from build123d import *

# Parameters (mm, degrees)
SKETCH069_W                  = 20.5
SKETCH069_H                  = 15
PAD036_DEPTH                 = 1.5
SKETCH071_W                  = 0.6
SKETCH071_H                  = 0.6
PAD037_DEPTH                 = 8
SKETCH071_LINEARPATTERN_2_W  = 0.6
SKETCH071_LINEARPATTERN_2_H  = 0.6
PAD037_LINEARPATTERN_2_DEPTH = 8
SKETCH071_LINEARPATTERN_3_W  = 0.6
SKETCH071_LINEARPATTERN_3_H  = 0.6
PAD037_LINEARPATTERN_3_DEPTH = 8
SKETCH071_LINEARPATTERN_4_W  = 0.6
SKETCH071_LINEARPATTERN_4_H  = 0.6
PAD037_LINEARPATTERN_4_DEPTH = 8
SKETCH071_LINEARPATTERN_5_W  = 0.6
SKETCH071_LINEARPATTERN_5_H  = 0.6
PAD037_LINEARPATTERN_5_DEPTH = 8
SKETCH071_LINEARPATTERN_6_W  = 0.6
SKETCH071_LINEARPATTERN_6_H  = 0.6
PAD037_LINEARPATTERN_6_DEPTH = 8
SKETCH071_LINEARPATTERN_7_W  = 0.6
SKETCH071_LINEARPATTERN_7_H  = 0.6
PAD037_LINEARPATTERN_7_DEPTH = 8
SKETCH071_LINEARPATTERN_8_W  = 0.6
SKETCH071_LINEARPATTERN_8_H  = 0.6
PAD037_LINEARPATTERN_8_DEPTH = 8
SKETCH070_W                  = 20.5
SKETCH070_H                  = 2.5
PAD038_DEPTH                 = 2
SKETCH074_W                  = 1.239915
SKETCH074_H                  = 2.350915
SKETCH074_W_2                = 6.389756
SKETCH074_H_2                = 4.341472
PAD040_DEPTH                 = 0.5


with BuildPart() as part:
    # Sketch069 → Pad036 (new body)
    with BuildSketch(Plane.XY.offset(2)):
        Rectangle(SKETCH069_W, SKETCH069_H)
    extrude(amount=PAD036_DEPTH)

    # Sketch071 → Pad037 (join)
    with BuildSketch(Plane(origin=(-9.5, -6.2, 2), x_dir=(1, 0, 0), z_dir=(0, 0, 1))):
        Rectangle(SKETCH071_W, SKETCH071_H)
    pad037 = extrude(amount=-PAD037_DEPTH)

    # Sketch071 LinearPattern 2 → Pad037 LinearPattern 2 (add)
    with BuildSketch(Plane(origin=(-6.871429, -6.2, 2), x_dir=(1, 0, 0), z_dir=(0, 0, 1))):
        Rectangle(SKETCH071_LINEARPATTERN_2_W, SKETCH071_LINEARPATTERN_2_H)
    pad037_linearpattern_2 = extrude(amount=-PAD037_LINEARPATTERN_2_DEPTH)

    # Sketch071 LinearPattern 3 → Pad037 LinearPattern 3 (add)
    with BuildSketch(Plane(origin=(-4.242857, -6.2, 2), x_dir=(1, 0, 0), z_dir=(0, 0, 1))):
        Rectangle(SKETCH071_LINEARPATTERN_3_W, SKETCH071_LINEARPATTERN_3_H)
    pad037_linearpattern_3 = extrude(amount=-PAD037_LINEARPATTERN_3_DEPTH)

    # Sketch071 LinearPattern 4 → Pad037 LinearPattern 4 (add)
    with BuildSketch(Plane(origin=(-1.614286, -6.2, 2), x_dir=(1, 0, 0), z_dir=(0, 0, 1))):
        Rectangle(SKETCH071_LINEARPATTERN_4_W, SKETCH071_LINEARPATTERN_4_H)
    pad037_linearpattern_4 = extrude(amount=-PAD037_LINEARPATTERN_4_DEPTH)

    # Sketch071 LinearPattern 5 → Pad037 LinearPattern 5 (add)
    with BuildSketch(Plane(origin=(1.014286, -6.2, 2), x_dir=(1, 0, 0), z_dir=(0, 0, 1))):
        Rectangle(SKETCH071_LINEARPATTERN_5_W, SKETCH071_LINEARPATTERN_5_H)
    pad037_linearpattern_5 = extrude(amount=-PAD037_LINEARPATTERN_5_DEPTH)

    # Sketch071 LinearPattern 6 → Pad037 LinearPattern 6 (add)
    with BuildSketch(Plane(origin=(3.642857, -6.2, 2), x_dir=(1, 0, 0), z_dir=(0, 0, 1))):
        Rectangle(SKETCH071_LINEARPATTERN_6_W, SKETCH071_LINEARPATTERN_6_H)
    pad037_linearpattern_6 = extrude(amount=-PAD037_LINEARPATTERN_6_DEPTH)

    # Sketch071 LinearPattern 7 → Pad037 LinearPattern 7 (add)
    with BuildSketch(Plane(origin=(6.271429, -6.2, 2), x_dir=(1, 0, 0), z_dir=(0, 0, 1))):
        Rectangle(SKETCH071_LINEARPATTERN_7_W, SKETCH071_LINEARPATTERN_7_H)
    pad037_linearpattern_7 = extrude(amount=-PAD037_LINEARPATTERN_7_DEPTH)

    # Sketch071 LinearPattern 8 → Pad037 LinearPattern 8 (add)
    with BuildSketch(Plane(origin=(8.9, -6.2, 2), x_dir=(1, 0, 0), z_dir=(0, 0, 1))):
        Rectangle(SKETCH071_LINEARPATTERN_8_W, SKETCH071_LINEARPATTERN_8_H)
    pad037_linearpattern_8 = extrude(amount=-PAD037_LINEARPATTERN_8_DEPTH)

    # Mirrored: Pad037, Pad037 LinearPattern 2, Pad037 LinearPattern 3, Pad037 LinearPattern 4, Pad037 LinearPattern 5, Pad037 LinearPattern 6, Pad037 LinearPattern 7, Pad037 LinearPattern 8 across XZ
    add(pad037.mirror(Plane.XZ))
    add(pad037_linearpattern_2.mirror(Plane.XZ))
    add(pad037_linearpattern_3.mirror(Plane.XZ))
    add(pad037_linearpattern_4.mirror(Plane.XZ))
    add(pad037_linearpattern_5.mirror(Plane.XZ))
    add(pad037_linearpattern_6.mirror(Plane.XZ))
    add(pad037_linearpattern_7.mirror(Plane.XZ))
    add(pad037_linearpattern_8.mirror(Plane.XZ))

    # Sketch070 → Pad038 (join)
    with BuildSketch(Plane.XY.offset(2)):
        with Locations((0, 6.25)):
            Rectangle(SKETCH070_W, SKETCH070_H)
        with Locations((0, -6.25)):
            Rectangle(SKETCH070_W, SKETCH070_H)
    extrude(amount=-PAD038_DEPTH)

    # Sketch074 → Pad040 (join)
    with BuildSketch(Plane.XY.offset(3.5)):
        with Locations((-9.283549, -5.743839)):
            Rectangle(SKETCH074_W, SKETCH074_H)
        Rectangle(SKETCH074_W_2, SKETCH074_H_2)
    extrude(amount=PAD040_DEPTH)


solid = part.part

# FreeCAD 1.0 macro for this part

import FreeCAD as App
import Part
import Sketcher

doc = App.newDocument("Part")
params = doc.addObject("Spreadsheet::Sheet", "Params")
for row, (alias, value) in enumerate([
    ("sketch1_height", "15 mm"),
    ("sketch1_width", "20.5 mm"),
    ("pad1_length", "1.5 mm"),
    ("sketch2_width", "0.6 mm"),
    ("pad2_length", "8 mm"),
    ("sketch3_width", "0.6 mm"),
    ("pad3_length", "8 mm"),
    ("sketch4_width", "0.6 mm"),
    ("pad4_length", "8 mm"),
    ("sketch5_width", "0.6 mm"),
    ("pad5_length", "8 mm"),
    ("sketch6_width", "0.6 mm"),
    ("pad6_length", "8 mm"),
    ("sketch7_width", "0.6 mm"),
    ("pad7_length", "8 mm"),
    ("sketch8_width", "0.6 mm"),
    ("pad8_length", "8 mm"),
    ("sketch9_width", "0.6 mm"),
    ("pad9_length", "8 mm"),
    ("sketch10_width", "20.5 mm"),
    ("sketch10_height", "2.5 mm"),
    ("pad10_length", "2 mm"),
    ("pad11_length", "0.5 mm"),
], start=1):
    params.set(f"A{row}", alias)
    params.set(f"B{row}", "=" + value)
    params.setAlias(f"B{row}", alias)

body = doc.addObject("PartDesign::Body", "Body")

sketch1 = body.newObject("Sketcher::SketchObject", "Sketch")
sketch1.AttachmentSupport = (doc.getObject("XY_Plane"), [""])
sketch1.MapMode = "FlatFace"
sketch1.AttachmentOffset = App.Placement(App.Vector(0, 0, 2), App.Rotation())
sketch1.addGeometry([
    Part.LineSegment(App.Vector(-10, 8, 0), App.Vector(-10, -8, 0)),
    Part.LineSegment(App.Vector(-10, -8, 0), App.Vector(10, -8, 0)),
    Part.LineSegment(App.Vector(10, -8, 0), App.Vector(10, 8, 0)),
    Part.LineSegment(App.Vector(10, 8, 0), App.Vector(-10, 8, 0)),
], False)
sketch1.addConstraint([
    Sketcher.Constraint("Coincident", 0, 2, 1, 1),
    Sketcher.Constraint("Coincident", 1, 2, 2, 1),
    Sketcher.Constraint("Coincident", 2, 2, 3, 1),
    Sketcher.Constraint("Coincident", 3, 2, 0, 1),
    Sketcher.Constraint("Vertical", 0),
    Sketcher.Constraint("Horizontal", 1),
    Sketcher.Constraint("Vertical", 2),
    Sketcher.Constraint("Horizontal", 3),
    Sketcher.Constraint("Symmetric", 0, 2, 2, 2, -1, 1),
    Sketcher.Constraint("DistanceY", 0, 2, 0, 1, 15.0),
    Sketcher.Constraint("DistanceX", 1, 1, 1, 2, 20.5),
])
sketch1.setExpression("Constraints[9]", "Params.sketch1_height")
sketch1.setExpression("Constraints[10]", "Params.sketch1_width")
pad1 = body.newObject("PartDesign::Pad", "Pad")
pad1.Profile = sketch1
pad1.setExpression("Length", "Params.pad1_length")

sketch2 = body.newObject("Sketcher::SketchObject", "Sketch001")
sketch2.AttachmentSupport = (doc.getObject("XY_Plane"), [""])
sketch2.MapMode = "FlatFace"
sketch2.AttachmentOffset = App.Placement(App.Vector(0, 0, 2), App.Rotation())
sketch2.addGeometry([
    Part.LineSegment(App.Vector(-9.8, -5.9, 0), App.Vector(-9.8, -6.5, 0)),
    Part.LineSegment(App.Vector(-9.8, -6.5, 0), App.Vector(-9.2, -6.5, 0)),
    Part.LineSegment(App.Vector(-9.2, -6.5, 0), App.Vector(-9.2, -5.9, 0)),
    Part.LineSegment(App.Vector(-9.2, -5.9, 0), App.Vector(-9.8, -5.9, 0)),
], False)
sketch2.addConstraint([
    Sketcher.Constraint("Coincident", 0, 2, 1, 1),
    Sketcher.Constraint("Coincident", 1, 2, 2, 1),
    Sketcher.Constraint("Coincident", 2, 2, 3, 1),
    Sketcher.Constraint("Coincident", 3, 2, 0, 1),
    Sketcher.Constraint("Vertical", 0),
    Sketcher.Constraint("Horizontal", 1),
    Sketcher.Constraint("Vertical", 2),
    Sketcher.Constraint("Horizontal", 3),
    Sketcher.Constraint("Equal", 3, 0),
    Sketcher.Constraint("DistanceX", 1, 1, 1, 2, 0.6),
    Sketcher.Constraint("DistanceX", 0, 2, -1, 1, 9.8),
    Sketcher.Constraint("DistanceY", 0, 2, -1, 1, 6.5),
])
sketch2.setExpression("Constraints[9]", "Params.sketch2_width")
pad2 = body.newObject("PartDesign::Pad", "Pad001")
pad2.Profile = sketch2
pad2.setExpression("Length", "Params.pad2_length")
pad2.Reversed = True

sketch3 = body.newObject("Sketcher::SketchObject", "Sketch002")
sketch3.AttachmentSupport = (doc.getObject("XY_Plane"), [""])
sketch3.MapMode = "FlatFace"
sketch3.AttachmentOffset = App.Placement(App.Vector(0, 0, 2), App.Rotation())
sketch3.addGeometry([
    Part.LineSegment(App.Vector(-7.2, -5.9, 0), App.Vector(-7.2, -6.5, 0)),
    Part.LineSegment(App.Vector(-7.2, -6.5, 0), App.Vector(-6.6, -6.5, 0)),
    Part.LineSegment(App.Vector(-6.6, -6.5, 0), App.Vector(-6.6, -5.9, 0)),
    Part.LineSegment(App.Vector(-6.6, -5.9, 0), App.Vector(-7.2, -5.9, 0)),
], False)
sketch3.addConstraint([
    Sketcher.Constraint("Coincident", 0, 2, 1, 1),
    Sketcher.Constraint("Coincident", 1, 2, 2, 1),
    Sketcher.Constraint("Coincident", 2, 2, 3, 1),
    Sketcher.Constraint("Coincident", 3, 2, 0, 1),
    Sketcher.Constraint("Vertical", 0),
    Sketcher.Constraint("Horizontal", 1),
    Sketcher.Constraint("Vertical", 2),
    Sketcher.Constraint("Horizontal", 3),
    Sketcher.Constraint("Equal", 3, 0),
    Sketcher.Constraint("DistanceX", 1, 1, 1, 2, 0.6),
    Sketcher.Constraint("DistanceY", 0, 2, -1, 1, 6.5),
    Sketcher.Constraint("DistanceX", 0, 2, -1, 1, 7.171429),
])
sketch3.setExpression("Constraints[9]", "Params.sketch3_width")
pad3 = body.newObject("PartDesign::Pad", "Pad002")
pad3.Profile = sketch3
pad3.setExpression("Length", "Params.pad3_length")
pad3.Reversed = True

sketch4 = body.newObject("Sketcher::SketchObject", "Sketch003")
sketch4.AttachmentSupport = (doc.getObject("XY_Plane"), [""])
sketch4.MapMode = "FlatFace"
sketch4.AttachmentOffset = App.Placement(App.Vector(0, 0, 2), App.Rotation())
sketch4.addGeometry([
    Part.LineSegment(App.Vector(-4.5, -5.9, 0), App.Vector(-4.5, -6.5, 0)),
    Part.LineSegment(App.Vector(-4.5, -6.5, 0), App.Vector(-3.9, -6.5, 0)),
    Part.LineSegment(App.Vector(-3.9, -6.5, 0), App.Vector(-3.9, -5.9, 0)),
    Part.LineSegment(App.Vector(-3.9, -5.9, 0), App.Vector(-4.5, -5.9, 0)),
], False)
sketch4.addConstraint([
    Sketcher.Constraint("Coincident", 0, 2, 1, 1),
    Sketcher.Constraint("Coincident", 1, 2, 2, 1),
    Sketcher.Constraint("Coincident", 2, 2, 3, 1),
    Sketcher.Constraint("Coincident", 3, 2, 0, 1),
    Sketcher.Constraint("Vertical", 0),
    Sketcher.Constraint("Horizontal", 1),
    Sketcher.Constraint("Vertical", 2),
    Sketcher.Constraint("Horizontal", 3),
    Sketcher.Constraint("Equal", 3, 0),
    Sketcher.Constraint("DistanceX", 1, 1, 1, 2, 0.6),
    Sketcher.Constraint("DistanceY", 0, 2, -1, 1, 6.5),
    Sketcher.Constraint("DistanceX", 0, 2, -1, 1, 4.542857),
])
sketch4.setExpression("Constraints[9]", "Params.sketch4_width")
pad4 = body.newObject("PartDesign::Pad", "Pad003")
pad4.Profile = sketch4
pad4.setExpression("Length", "Params.pad4_length")
pad4.Reversed = True

sketch5 = body.newObject("Sketcher::SketchObject", "Sketch004")
sketch5.AttachmentSupport = (doc.getObject("XY_Plane"), [""])
sketch5.MapMode = "FlatFace"
sketch5.AttachmentOffset = App.Placement(App.Vector(0, 0, 2), App.Rotation())
sketch5.addGeometry([
    Part.LineSegment(App.Vector(-1.9, -5.9, 0), App.Vector(-1.9, -6.5, 0)),
    Part.LineSegment(App.Vector(-1.9, -6.5, 0), App.Vector(-1.3, -6.5, 0)),
    Part.LineSegment(App.Vector(-1.3, -6.5, 0), App.Vector(-1.3, -5.9, 0)),
    Part.LineSegment(App.Vector(-1.3, -5.9, 0), App.Vector(-1.9, -5.9, 0)),
], False)
sketch5.addConstraint([
    Sketcher.Constraint("Coincident", 0, 2, 1, 1),
    Sketcher.Constraint("Coincident", 1, 2, 2, 1),
    Sketcher.Constraint("Coincident", 2, 2, 3, 1),
    Sketcher.Constraint("Coincident", 3, 2, 0, 1),
    Sketcher.Constraint("Vertical", 0),
    Sketcher.Constraint("Horizontal", 1),
    Sketcher.Constraint("Vertical", 2),
    Sketcher.Constraint("Horizontal", 3),
    Sketcher.Constraint("Equal", 3, 0),
    Sketcher.Constraint("DistanceX", 1, 1, 1, 2, 0.6),
    Sketcher.Constraint("DistanceY", 0, 2, -1, 1, 6.5),
    Sketcher.Constraint("DistanceX", 0, 2, -1, 1, 1.914286),
])
sketch5.setExpression("Constraints[9]", "Params.sketch5_width")
pad5 = body.newObject("PartDesign::Pad", "Pad004")
pad5.Profile = sketch5
pad5.setExpression("Length", "Params.pad5_length")
pad5.Reversed = True

sketch6 = body.newObject("Sketcher::SketchObject", "Sketch005")
sketch6.AttachmentSupport = (doc.getObject("XY_Plane"), [""])
sketch6.MapMode = "FlatFace"
sketch6.AttachmentOffset = App.Placement(App.Vector(0, 0, 2), App.Rotation())
sketch6.addGeometry([
    Part.LineSegment(App.Vector(0.7, -5.9, 0), App.Vector(0.7, -6.5, 0)),
    Part.LineSegment(App.Vector(0.7, -6.5, 0), App.Vector(1.3, -6.5, 0)),
    Part.LineSegment(App.Vector(1.3, -6.5, 0), App.Vector(1.3, -5.9, 0)),
    Part.LineSegment(App.Vector(1.3, -5.9, 0), App.Vector(0.7, -5.9, 0)),
], False)
sketch6.addConstraint([
    Sketcher.Constraint("Coincident", 0, 2, 1, 1),
    Sketcher.Constraint("Coincident", 1, 2, 2, 1),
    Sketcher.Constraint("Coincident", 2, 2, 3, 1),
    Sketcher.Constraint("Coincident", 3, 2, 0, 1),
    Sketcher.Constraint("Vertical", 0),
    Sketcher.Constraint("Horizontal", 1),
    Sketcher.Constraint("Vertical", 2),
    Sketcher.Constraint("Horizontal", 3),
    Sketcher.Constraint("Equal", 3, 0),
    Sketcher.Constraint("DistanceX", 1, 1, 1, 2, 0.6),
    Sketcher.Constraint("DistanceY", 0, 2, -1, 1, 6.5),
    Sketcher.Constraint("DistanceX", -1, 1, 0, 2, 0.714286),
])
sketch6.setExpression("Constraints[9]", "Params.sketch6_width")
pad6 = body.newObject("PartDesign::Pad", "Pad005")
pad6.Profile = sketch6
pad6.setExpression("Length", "Params.pad6_length")
pad6.Reversed = True

sketch7 = body.newObject("Sketcher::SketchObject", "Sketch006")
sketch7.AttachmentSupport = (doc.getObject("XY_Plane"), [""])
sketch7.MapMode = "FlatFace"
sketch7.AttachmentOffset = App.Placement(App.Vector(0, 0, 2), App.Rotation())
sketch7.addGeometry([
    Part.LineSegment(App.Vector(3.3, -5.9, 0), App.Vector(3.3, -6.5, 0)),
    Part.LineSegment(App.Vector(3.3, -6.5, 0), App.Vector(3.9, -6.5, 0)),
    Part.LineSegment(App.Vector(3.9, -6.5, 0), App.Vector(3.9, -5.9, 0)),
    Part.LineSegment(App.Vector(3.9, -5.9, 0), App.Vector(3.3, -5.9, 0)),
], False)
sketch7.addConstraint([
    Sketcher.Constraint("Coincident", 0, 2, 1, 1),
    Sketcher.Constraint("Coincident", 1, 2, 2, 1),
    Sketcher.Constraint("Coincident", 2, 2, 3, 1),
    Sketcher.Constraint("Coincident", 3, 2, 0, 1),
    Sketcher.Constraint("Vertical", 0),
    Sketcher.Constraint("Horizontal", 1),
    Sketcher.Constraint("Vertical", 2),
    Sketcher.Constraint("Horizontal", 3),
    Sketcher.Constraint("Equal", 3, 0),
    Sketcher.Constraint("DistanceX", 1, 1, 1, 2, 0.6),
    Sketcher.Constraint("DistanceY", 0, 2, -1, 1, 6.5),
    Sketcher.Constraint("DistanceX", -1, 1, 0, 2, 3.342857),
])
sketch7.setExpression("Constraints[9]", "Params.sketch7_width")
pad7 = body.newObject("PartDesign::Pad", "Pad006")
pad7.Profile = sketch7
pad7.setExpression("Length", "Params.pad7_length")
pad7.Reversed = True

sketch8 = body.newObject("Sketcher::SketchObject", "Sketch007")
sketch8.AttachmentSupport = (doc.getObject("XY_Plane"), [""])
sketch8.MapMode = "FlatFace"
sketch8.AttachmentOffset = App.Placement(App.Vector(0, 0, 2), App.Rotation())
sketch8.addGeometry([
    Part.LineSegment(App.Vector(6, -5.9, 0), App.Vector(6, -6.5, 0)),
    Part.LineSegment(App.Vector(6, -6.5, 0), App.Vector(6.6, -6.5, 0)),
    Part.LineSegment(App.Vector(6.6, -6.5, 0), App.Vector(6.6, -5.9, 0)),
    Part.LineSegment(App.Vector(6.6, -5.9, 0), App.Vector(6, -5.9, 0)),
], False)
sketch8.addConstraint([
    Sketcher.Constraint("Coincident", 0, 2, 1, 1),
    Sketcher.Constraint("Coincident", 1, 2, 2, 1),
    Sketcher.Constraint("Coincident", 2, 2, 3, 1),
    Sketcher.Constraint("Coincident", 3, 2, 0, 1),
    Sketcher.Constraint("Vertical", 0),
    Sketcher.Constraint("Horizontal", 1),
    Sketcher.Constraint("Vertical", 2),
    Sketcher.Constraint("Horizontal", 3),
    Sketcher.Constraint("Equal", 3, 0),
    Sketcher.Constraint("DistanceX", 1, 1, 1, 2, 0.6),
    Sketcher.Constraint("DistanceY", 0, 2, -1, 1, 6.5),
    Sketcher.Constraint("DistanceX", -1, 1, 0, 2, 5.971429),
])
sketch8.setExpression("Constraints[9]", "Params.sketch8_width")
pad8 = body.newObject("PartDesign::Pad", "Pad007")
pad8.Profile = sketch8
pad8.setExpression("Length", "Params.pad8_length")
pad8.Reversed = True

sketch9 = body.newObject("Sketcher::SketchObject", "Sketch008")
sketch9.AttachmentSupport = (doc.getObject("XY_Plane"), [""])
sketch9.MapMode = "FlatFace"
sketch9.AttachmentOffset = App.Placement(App.Vector(0, 0, 2), App.Rotation())
sketch9.addGeometry([
    Part.LineSegment(App.Vector(8.6, -5.9, 0), App.Vector(8.6, -6.5, 0)),
    Part.LineSegment(App.Vector(8.6, -6.5, 0), App.Vector(9.2, -6.5, 0)),
    Part.LineSegment(App.Vector(9.2, -6.5, 0), App.Vector(9.2, -5.9, 0)),
    Part.LineSegment(App.Vector(9.2, -5.9, 0), App.Vector(8.6, -5.9, 0)),
], False)
sketch9.addConstraint([
    Sketcher.Constraint("Coincident", 0, 2, 1, 1),
    Sketcher.Constraint("Coincident", 1, 2, 2, 1),
    Sketcher.Constraint("Coincident", 2, 2, 3, 1),
    Sketcher.Constraint("Coincident", 3, 2, 0, 1),
    Sketcher.Constraint("Vertical", 0),
    Sketcher.Constraint("Horizontal", 1),
    Sketcher.Constraint("Vertical", 2),
    Sketcher.Constraint("Horizontal", 3),
    Sketcher.Constraint("Equal", 3, 0),
    Sketcher.Constraint("DistanceX", 1, 1, 1, 2, 0.6),
    Sketcher.Constraint("DistanceX", -1, 1, 0, 2, 8.6),
    Sketcher.Constraint("DistanceY", 0, 2, -1, 1, 6.5),
])
sketch9.setExpression("Constraints[9]", "Params.sketch9_width")
pad9 = body.newObject("PartDesign::Pad", "Pad008")
pad9.Profile = sketch9
pad9.setExpression("Length", "Params.pad9_length")
pad9.Reversed = True
doc.recompute()

mirrored = body.newObject("PartDesign::Mirrored", "Mirrored")
mirrored.Originals = [pad2, pad3, pad4, pad5, pad6, pad7, pad8, pad9]
mirrored.MirrorPlane = (doc.getObject("XZ_Plane"), [""])
body.Tip = mirrored

sketch10 = body.newObject("Sketcher::SketchObject", "Sketch009")
sketch10.AttachmentSupport = (doc.getObject("XY_Plane"), [""])
sketch10.MapMode = "FlatFace"
sketch10.AttachmentOffset = App.Placement(App.Vector(0, 0, 2), App.Rotation())
sketch10.addGeometry([
    Part.LineSegment(App.Vector(-10.2, 7.5, 0), App.Vector(-10.2, 5, 0)),
    Part.LineSegment(App.Vector(-10.2, 5, 0), App.Vector(10.2, 5, 0)),
    Part.LineSegment(App.Vector(10.2, 5, 0), App.Vector(10.2, 7.5, 0)),
    Part.LineSegment(App.Vector(10.2, 7.5, 0), App.Vector(-10.2, 7.5, 0)),
    Part.LineSegment(App.Vector(-10.2, -5, 0), App.Vector(-10.2, -7.5, 0)),
    Part.LineSegment(App.Vector(-10.2, -7.5, 0), App.Vector(10.2, -7.5, 0)),
    Part.LineSegment(App.Vector(10.2, -7.5, 0), App.Vector(10.2, -5, 0)),
    Part.LineSegment(App.Vector(10.2, -5, 0), App.Vector(-10.2, -5, 0)),
], False)
sketch10.addConstraint([
    Sketcher.Constraint("Coincident", 0, 2, 1, 1),
    Sketcher.Constraint("Coincident", 1, 2, 2, 1),
    Sketcher.Constraint("Coincident", 2, 2, 3, 1),
    Sketcher.Constraint("Coincident", 3, 2, 0, 1),
    Sketcher.Constraint("Coincident", 4, 2, 5, 1),
    Sketcher.Constraint("Coincident", 5, 2, 6, 1),
    Sketcher.Constraint("Coincident", 6, 2, 7, 1),
    Sketcher.Constraint("Coincident", 7, 2, 4, 1),
    Sketcher.Constraint("Vertical", 0),
    Sketcher.Constraint("Horizontal", 1),
    Sketcher.Constraint("Vertical", 2),
    Sketcher.Constraint("Horizontal", 3),
    Sketcher.Constraint("Vertical", 4),
    Sketcher.Constraint("Horizontal", 5),
    Sketcher.Constraint("Vertical", 6),
    Sketcher.Constraint("Horizontal", 7),
    Sketcher.Constraint("Symmetric", 2, 2, 4, 2, -1, 1),
    Sketcher.Constraint("Symmetric", 0, 2, 6, 2, -1, 1),
    Sketcher.Constraint("Vertical", 3, 2, 4, 2),
    Sketcher.Constraint("DistanceX", 1, 1, 1, 2, 20.5),
    Sketcher.Constraint("DistanceY", 0, 2, 0, 1, 2.5),
    Sketcher.Constraint("DistanceY", -1, 1, 0, 2, 5.0),
])
sketch10.setExpression("Constraints[19]", "Params.sketch10_width")
sketch10.setExpression("Constraints[20]", "Params.sketch10_height")
pad10 = body.newObject("PartDesign::Pad", "Pad009")
pad10.Profile = sketch10
pad10.setExpression("Length", "Params.pad10_length")
pad10.Reversed = True

sketch11 = body.newObject("Sketcher::SketchObject", "Sketch010")
sketch11.AttachmentSupport = (doc.getObject("XY_Plane"), [""])
sketch11.MapMode = "FlatFace"
sketch11.AttachmentOffset = App.Placement(App.Vector(0, 0, 3.5), App.Rotation())
sketch11.addGeometry([
    Part.LineSegment(App.Vector(-9.9, -4.6, 0), App.Vector(-9.9, -6.9, 0)),
    Part.LineSegment(App.Vector(-9.9, -6.9, 0), App.Vector(-8.7, -6.9, 0)),
    Part.LineSegment(App.Vector(-8.7, -6.9, 0), App.Vector(-8.7, -4.6, 0)),
    Part.LineSegment(App.Vector(-8.7, -4.6, 0), App.Vector(-9.9, -4.6, 0)),
    Part.LineSegment(App.Vector(-3.2, 2.2, 0), App.Vector(-3.2, -2.2, 0)),
    Part.LineSegment(App.Vector(-3.2, -2.2, 0), App.Vector(3.2, -2.2, 0)),
    Part.LineSegment(App.Vector(3.2, -2.2, 0), App.Vector(3.2, 2.2, 0)),
    Part.LineSegment(App.Vector(3.2, 2.2, 0), App.Vector(-3.2, 2.2, 0)),
], False)
sketch11.addConstraint([
    Sketcher.Constraint("Coincident", 0, 2, 1, 1),
    Sketcher.Constraint("Coincident", 1, 2, 2, 1),
    Sketcher.Constraint("Coincident", 2, 2, 3, 1),
    Sketcher.Constraint("Coincident", 3, 2, 0, 1),
    Sketcher.Constraint("Coincident", 4, 2, 5, 1),
    Sketcher.Constraint("Coincident", 5, 2, 6, 1),
    Sketcher.Constraint("Coincident", 6, 2, 7, 1),
    Sketcher.Constraint("Coincident", 7, 2, 4, 1),
    Sketcher.Constraint("Vertical", 0),
    Sketcher.Constraint("Horizontal", 1),
    Sketcher.Constraint("Vertical", 2),
    Sketcher.Constraint("Horizontal", 3),
    Sketcher.Constraint("Vertical", 4),
    Sketcher.Constraint("Horizontal", 5),
    Sketcher.Constraint("Vertical", 6),
    Sketcher.Constraint("Horizontal", 7),
    Sketcher.Constraint("Symmetric", 4, 2, 6, 2, -1, 1),
    Sketcher.Constraint("DistanceX", 1, 1, 1, 2, 1.239915),
    Sketcher.Constraint("DistanceX", 5, 1, 5, 2, 6.389756),
    Sketcher.Constraint("DistanceY", 0, 2, 0, 1, 2.350915),
    Sketcher.Constraint("DistanceY", 4, 2, 4, 1, 4.341472),
    Sketcher.Constraint("DistanceX", 1, 2, -1, 1, 8.663592),
    Sketcher.Constraint("DistanceY", 2, 2, -1, 1, 4.568382),
])
pad11 = body.newObject("PartDesign::Pad", "Pad010")
pad11.Profile = sketch11
pad11.setExpression("Length", "Params.pad11_length")

doc.recompute()
